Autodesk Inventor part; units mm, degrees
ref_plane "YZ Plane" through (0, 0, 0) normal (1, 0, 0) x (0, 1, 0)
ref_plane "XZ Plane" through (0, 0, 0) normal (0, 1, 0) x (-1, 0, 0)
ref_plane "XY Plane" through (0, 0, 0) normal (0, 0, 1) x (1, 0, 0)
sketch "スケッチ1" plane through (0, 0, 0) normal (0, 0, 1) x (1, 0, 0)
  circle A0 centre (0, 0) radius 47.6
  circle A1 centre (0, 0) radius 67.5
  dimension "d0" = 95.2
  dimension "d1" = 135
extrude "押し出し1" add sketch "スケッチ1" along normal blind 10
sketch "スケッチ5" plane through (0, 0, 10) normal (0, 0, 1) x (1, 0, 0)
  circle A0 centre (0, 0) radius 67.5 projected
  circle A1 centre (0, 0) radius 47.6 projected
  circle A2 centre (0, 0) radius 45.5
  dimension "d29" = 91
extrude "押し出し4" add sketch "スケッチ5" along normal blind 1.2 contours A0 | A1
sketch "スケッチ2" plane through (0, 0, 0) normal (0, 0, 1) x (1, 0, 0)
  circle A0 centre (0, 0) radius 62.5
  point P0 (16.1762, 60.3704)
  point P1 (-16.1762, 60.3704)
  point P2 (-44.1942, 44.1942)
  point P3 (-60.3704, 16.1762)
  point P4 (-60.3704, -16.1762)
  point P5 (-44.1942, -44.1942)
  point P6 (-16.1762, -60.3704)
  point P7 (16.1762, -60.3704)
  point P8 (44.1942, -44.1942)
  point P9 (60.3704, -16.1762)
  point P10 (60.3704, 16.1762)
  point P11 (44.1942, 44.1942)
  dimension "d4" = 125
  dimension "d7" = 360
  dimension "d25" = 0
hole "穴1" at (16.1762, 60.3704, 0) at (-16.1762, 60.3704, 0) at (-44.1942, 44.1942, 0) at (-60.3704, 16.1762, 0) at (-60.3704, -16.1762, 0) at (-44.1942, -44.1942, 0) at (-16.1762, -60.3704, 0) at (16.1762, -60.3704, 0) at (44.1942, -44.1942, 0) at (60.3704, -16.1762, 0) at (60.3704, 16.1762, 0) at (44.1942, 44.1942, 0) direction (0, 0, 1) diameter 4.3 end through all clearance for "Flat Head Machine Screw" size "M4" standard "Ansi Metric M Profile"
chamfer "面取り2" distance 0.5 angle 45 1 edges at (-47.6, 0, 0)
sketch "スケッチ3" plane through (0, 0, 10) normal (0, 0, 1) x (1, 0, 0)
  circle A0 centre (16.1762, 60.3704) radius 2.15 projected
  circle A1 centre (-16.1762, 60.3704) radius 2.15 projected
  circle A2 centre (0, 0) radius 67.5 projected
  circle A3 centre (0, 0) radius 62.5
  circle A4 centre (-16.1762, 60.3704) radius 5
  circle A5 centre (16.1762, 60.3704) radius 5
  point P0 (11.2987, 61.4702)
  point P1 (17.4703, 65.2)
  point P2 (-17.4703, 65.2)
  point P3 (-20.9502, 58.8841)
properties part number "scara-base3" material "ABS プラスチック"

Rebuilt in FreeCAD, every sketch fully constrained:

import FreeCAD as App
import Part
import Sketcher

V = App.Vector
Q = App.Units.Quantity


def edges_at(feature, points):
    """Names of the edges that pass closest to the given points."""
    edges = feature.Shape.Edges
    near = lambda p: min(range(len(edges)), key=lambda i: edges[i].distToShape(Part.Vertex(*p))[0])
    return sorted({f"Edge{near(p) + 1}" for p in points})

doc = App.newDocument("Part")
body = doc.addObject("PartDesign::Body", "Body")

# Sketch on XY plane
sketch1 = body.newObject("Sketcher::SketchObject", "Sketch")
sketch1.AttachmentSupport = (doc.getObject("XY_Plane"), [""])
sketch1.MapMode = "FlatFace"
sketch1.addGeometry(Part.Circle(V(0, 0, 0), V(0, 0, 1), 68), False)
sketch1.addGeometry(Part.Circle(V(0, 0, 0), V(0, 0, 1), 48), False)
sketch1.addConstraint(Sketcher.Constraint("Coincident", 0, 3, -1, 1))
sketch1.addConstraint(Sketcher.Constraint("Coincident", 1, 3, -1, 1))
sketch1.addConstraint(Sketcher.Constraint("Diameter", 0, Q("135 mm")))
sketch1.addConstraint(Sketcher.Constraint("Diameter", 1, Q("95.2 mm")))
pad1 = body.newObject("PartDesign::Pad", "Pad")
pad1.Profile = sketch1
pad1.Length = 10

# Sketch on XY plane
sketch2 = body.newObject("Sketcher::SketchObject", "Sketch001")
sketch2.AttachmentSupport = (doc.getObject("XY_Plane"), [""])
sketch2.MapMode = "FlatFace"
sketch2.AttachmentOffset = App.Placement(V(0, 0, 10), App.Rotation())
sketch2.addGeometry(Part.Circle(V(0, 0, 0), V(0, 0, 1), 68), False)
sketch2.addGeometry(Part.Circle(V(0, 0, 0), V(0, 0, 1), 46), False)
sketch2.addConstraint(Sketcher.Constraint("Coincident", 0, 3, -1, 1))
sketch2.addConstraint(Sketcher.Constraint("Coincident", 1, 3, -1, 1))
sketch2.addConstraint(Sketcher.Constraint("Diameter", 1, Q("91 mm")))
sketch2.addConstraint(Sketcher.Constraint("Diameter", 0, Q("135 mm")))
pad2 = body.newObject("PartDesign::Pad", "Pad001")
pad2.Profile = sketch2
pad2.Length = 1.2

# Sketch on XY plane
sketch3 = body.newObject("Sketcher::SketchObject", "Sketch002")
sketch3.AttachmentSupport = (doc.getObject("XY_Plane"), [""])
sketch3.MapMode = "FlatFace"
sketch3.addGeometry(Part.Circle(V(16.2, 60.4, 0), V(0, 0, 1), 2.1), False)
sketch3.addGeometry(Part.Circle(V(-16.2, 60.4, 0), V(0, 0, 1), 2.1), False)
sketch3.addGeometry(Part.Circle(V(-44.2, 44.2, 0), V(0, 0, 1), 2.1), False)
sketch3.addGeometry(Part.Circle(V(-60.4, 16.2, 0), V(0, 0, 1), 2.1), False)
sketch3.addGeometry(Part.Circle(V(-60.4, -16.2, 0), V(0, 0, 1), 2.1), False)
sketch3.addGeometry(Part.Circle(V(-44.2, -44.2, 0), V(0, 0, 1), 2.1), False)
sketch3.addGeometry(Part.Circle(V(-16.2, -60.4, 0), V(0, 0, 1), 2.1), False)
sketch3.addGeometry(Part.Circle(V(16.2, -60.4, 0), V(0, 0, 1), 2.1), False)
sketch3.addGeometry(Part.Circle(V(44.2, -44.2, 0), V(0, 0, 1), 2.1), False)
sketch3.addGeometry(Part.Circle(V(60.4, -16.2, 0), V(0, 0, 1), 2.1), False)
sketch3.addGeometry(Part.Circle(V(60.4, 16.2, 0), V(0, 0, 1), 2.1), False)
sketch3.addGeometry(Part.Circle(V(44.2, 44.2, 0), V(0, 0, 1), 2.1), False)
sketch3.addConstraint(Sketcher.Constraint("Equal", 0, 1))
sketch3.addConstraint(Sketcher.Constraint("Equal", 1, 2))
sketch3.addConstraint(Sketcher.Constraint("Equal", 2, 3))
sketch3.addConstraint(Sketcher.Constraint("Equal", 3, 4))
sketch3.addConstraint(Sketcher.Constraint("Equal", 4, 5))
sketch3.addConstraint(Sketcher.Constraint("Equal", 5, 6))
sketch3.addConstraint(Sketcher.Constraint("Equal", 6, 7))
sketch3.addConstraint(Sketcher.Constraint("Equal", 7, 8))
sketch3.addConstraint(Sketcher.Constraint("Equal", 8, 9))
sketch3.addConstraint(Sketcher.Constraint("Equal", 9, 10))
sketch3.addConstraint(Sketcher.Constraint("Equal", 10, 11))
sketch3.addConstraint(Sketcher.Constraint("Symmetric", 0, 3, 6, 3, -1, 1))
sketch3.addConstraint(Sketcher.Constraint("Symmetric", 1, 3, 7, 3, -1, 1))
sketch3.addConstraint(Sketcher.Constraint("Symmetric", 2, 3, 8, 3, -1, 1))
sketch3.addConstraint(Sketcher.Constraint("Symmetric", 3, 3, 9, 3, -1, 1))
sketch3.addConstraint(Sketcher.Constraint("Symmetric", 4, 3, 10, 3, -1, 1))
sketch3.addConstraint(Sketcher.Constraint("Symmetric", 5, 3, 11, 3, -1, 1))
sketch3.addConstraint(Sketcher.Constraint("Symmetric", 0, 3, 1, 3, -2))
sketch3.addConstraint(Sketcher.Constraint("Symmetric", 5, 3, 8, 3, -2))
sketch3.addConstraint(Sketcher.Constraint("Symmetric", 4, 3, 9, 3, -2))
sketch3.addConstraint(Sketcher.Constraint("Diameter", 0, Q("4.3 mm")))
sketch3.addConstraint(Sketcher.Constraint("DistanceX", 2, 3, 1, 3, Q("28.018 mm")))
sketch3.addConstraint(Sketcher.Constraint("DistanceY", 3, 3, 2, 3, Q("28.018 mm")))
sketch3.addConstraint(Sketcher.Constraint("DistanceX", -1, 1, 0, 3, Q("16.1762 mm")))
sketch3.addConstraint(Sketcher.Constraint("DistanceY", -1, 1, 0, 3, Q("60.3704 mm")))
sketch3.addConstraint(Sketcher.Constraint("DistanceY", -1, 1, 2, 3, Q("44.1942 mm")))
sketch3.addConstraint(Sketcher.Constraint("DistanceX", 3, 3, -1, 1, Q("60.3704 mm")))
doc.recompute()
hole = body.newObject("PartDesign::Hole", "Hole")
hole.Profile = sketch3
hole.ThreadType = "None"
hole.Diameter = 4.3
hole.DepthType = "ThroughAll"
hole.Reversed = True
doc.recompute()

chamfer = body.newObject("PartDesign::Chamfer", "Chamfer")
chamfer.Base = (hole, edges_at(hole, [(-47.6, 0, 0)]))
chamfer.Size = 0.5

doc.recompute()
